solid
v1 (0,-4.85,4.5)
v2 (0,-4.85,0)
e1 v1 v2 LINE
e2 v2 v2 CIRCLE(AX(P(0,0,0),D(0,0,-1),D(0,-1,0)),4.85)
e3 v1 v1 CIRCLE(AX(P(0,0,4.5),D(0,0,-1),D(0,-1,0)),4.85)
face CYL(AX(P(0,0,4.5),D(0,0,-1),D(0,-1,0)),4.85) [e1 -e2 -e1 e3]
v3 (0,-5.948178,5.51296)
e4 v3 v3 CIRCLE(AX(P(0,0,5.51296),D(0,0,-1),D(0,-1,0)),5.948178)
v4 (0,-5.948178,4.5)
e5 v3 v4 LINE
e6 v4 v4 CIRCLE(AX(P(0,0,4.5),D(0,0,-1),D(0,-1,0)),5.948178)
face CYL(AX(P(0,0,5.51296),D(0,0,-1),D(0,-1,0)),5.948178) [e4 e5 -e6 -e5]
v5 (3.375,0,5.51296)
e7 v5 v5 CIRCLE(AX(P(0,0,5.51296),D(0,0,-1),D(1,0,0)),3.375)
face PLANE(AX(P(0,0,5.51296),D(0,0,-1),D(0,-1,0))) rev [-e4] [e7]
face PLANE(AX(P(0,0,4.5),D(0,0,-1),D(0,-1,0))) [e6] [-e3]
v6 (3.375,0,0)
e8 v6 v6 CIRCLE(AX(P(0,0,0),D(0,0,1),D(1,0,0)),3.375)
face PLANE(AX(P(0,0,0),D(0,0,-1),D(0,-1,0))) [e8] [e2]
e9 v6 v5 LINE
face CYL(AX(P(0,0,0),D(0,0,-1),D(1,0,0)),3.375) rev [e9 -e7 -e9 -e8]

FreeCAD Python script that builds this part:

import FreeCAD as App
import Part
import Sketcher

V = App.Vector


def add_polygon(sketch, points):
    """Adds a closed chain of lines whose ends are joined by coincident constraints."""
    first, n = sketch.GeometryCount, len(points)
    for a, b in zip(points, points[1:] + points[:1]):
        sketch.addGeometry(Part.LineSegment(App.Vector(*a, 0), App.Vector(*b, 0)), False)
    for i in range(n):
        sketch.addConstraint(Sketcher.Constraint("Coincident", first + i, 2, first + (i + 1) % n, 1))

doc = App.newDocument("Part")
body = doc.addObject("PartDesign::Body", "Body")

sketch1 = body.newObject("Sketcher::SketchObject", "Sketch")
sketch1.AttachmentSupport = (doc.getObject("YZ_Plane"), [""])
sketch1.MapMode = "FlatFace"
add_polygon(sketch1, [(-5.9, 4.5), (-4.8, 4.5), (-4.8, 0), (0, 0), (0, 5.5), (-5.9, 5.5)])
sketch1.addConstraint(Sketcher.Constraint("Horizontal", 0))
sketch1.addConstraint(Sketcher.Constraint("Vertical", 1))
sketch1.addConstraint(Sketcher.Constraint("Horizontal", 2))
sketch1.addConstraint(Sketcher.Constraint("Vertical", 3))
sketch1.addConstraint(Sketcher.Constraint("Horizontal", 4))
sketch1.addConstraint(Sketcher.Constraint("Vertical", 5))
sketch1.addConstraint(Sketcher.Constraint("Coincident", 2, 2, -1, 1))
sketch1.addConstraint(Sketcher.Constraint("DistanceY", 1, 2, 1, 1, 4.5))
sketch1.addConstraint(Sketcher.Constraint("DistanceX", 2, 1, 2, 2, 4.85))
sketch1.addConstraint(Sketcher.Constraint("DistanceX", 0, 1, 0, 2, 1.098178))
sketch1.addConstraint(Sketcher.Constraint("DistanceY", 3, 1, 3, 2, 5.51296))
revolution = body.newObject("PartDesign::Revolution", "Revolution")
revolution.Profile = sketch1
revolution.ReferenceAxis = (sketch1, ["V_Axis"])
revolution.Angle = 360

sketch2 = body.newObject("Sketcher::SketchObject", "Sketch001")
sketch2.AttachmentSupport = (doc.getObject("XY_Plane"), [""])
sketch2.MapMode = "FlatFace"
sketch2.addGeometry(Part.Circle(V(0, 0, 0), V(0, 0, 1), 3.4), False)
sketch2.addConstraint(Sketcher.Constraint("Coincident", 0, 3, -1, 1))
sketch2.addConstraint(Sketcher.Constraint("Diameter", 0, 6.75))
pocket1 = body.newObject("PartDesign::Pocket", "Pocket")
pocket1.Profile = sketch2
pocket1.Length = 6.76984
pocket1.Reversed = True

doc.recompute()
